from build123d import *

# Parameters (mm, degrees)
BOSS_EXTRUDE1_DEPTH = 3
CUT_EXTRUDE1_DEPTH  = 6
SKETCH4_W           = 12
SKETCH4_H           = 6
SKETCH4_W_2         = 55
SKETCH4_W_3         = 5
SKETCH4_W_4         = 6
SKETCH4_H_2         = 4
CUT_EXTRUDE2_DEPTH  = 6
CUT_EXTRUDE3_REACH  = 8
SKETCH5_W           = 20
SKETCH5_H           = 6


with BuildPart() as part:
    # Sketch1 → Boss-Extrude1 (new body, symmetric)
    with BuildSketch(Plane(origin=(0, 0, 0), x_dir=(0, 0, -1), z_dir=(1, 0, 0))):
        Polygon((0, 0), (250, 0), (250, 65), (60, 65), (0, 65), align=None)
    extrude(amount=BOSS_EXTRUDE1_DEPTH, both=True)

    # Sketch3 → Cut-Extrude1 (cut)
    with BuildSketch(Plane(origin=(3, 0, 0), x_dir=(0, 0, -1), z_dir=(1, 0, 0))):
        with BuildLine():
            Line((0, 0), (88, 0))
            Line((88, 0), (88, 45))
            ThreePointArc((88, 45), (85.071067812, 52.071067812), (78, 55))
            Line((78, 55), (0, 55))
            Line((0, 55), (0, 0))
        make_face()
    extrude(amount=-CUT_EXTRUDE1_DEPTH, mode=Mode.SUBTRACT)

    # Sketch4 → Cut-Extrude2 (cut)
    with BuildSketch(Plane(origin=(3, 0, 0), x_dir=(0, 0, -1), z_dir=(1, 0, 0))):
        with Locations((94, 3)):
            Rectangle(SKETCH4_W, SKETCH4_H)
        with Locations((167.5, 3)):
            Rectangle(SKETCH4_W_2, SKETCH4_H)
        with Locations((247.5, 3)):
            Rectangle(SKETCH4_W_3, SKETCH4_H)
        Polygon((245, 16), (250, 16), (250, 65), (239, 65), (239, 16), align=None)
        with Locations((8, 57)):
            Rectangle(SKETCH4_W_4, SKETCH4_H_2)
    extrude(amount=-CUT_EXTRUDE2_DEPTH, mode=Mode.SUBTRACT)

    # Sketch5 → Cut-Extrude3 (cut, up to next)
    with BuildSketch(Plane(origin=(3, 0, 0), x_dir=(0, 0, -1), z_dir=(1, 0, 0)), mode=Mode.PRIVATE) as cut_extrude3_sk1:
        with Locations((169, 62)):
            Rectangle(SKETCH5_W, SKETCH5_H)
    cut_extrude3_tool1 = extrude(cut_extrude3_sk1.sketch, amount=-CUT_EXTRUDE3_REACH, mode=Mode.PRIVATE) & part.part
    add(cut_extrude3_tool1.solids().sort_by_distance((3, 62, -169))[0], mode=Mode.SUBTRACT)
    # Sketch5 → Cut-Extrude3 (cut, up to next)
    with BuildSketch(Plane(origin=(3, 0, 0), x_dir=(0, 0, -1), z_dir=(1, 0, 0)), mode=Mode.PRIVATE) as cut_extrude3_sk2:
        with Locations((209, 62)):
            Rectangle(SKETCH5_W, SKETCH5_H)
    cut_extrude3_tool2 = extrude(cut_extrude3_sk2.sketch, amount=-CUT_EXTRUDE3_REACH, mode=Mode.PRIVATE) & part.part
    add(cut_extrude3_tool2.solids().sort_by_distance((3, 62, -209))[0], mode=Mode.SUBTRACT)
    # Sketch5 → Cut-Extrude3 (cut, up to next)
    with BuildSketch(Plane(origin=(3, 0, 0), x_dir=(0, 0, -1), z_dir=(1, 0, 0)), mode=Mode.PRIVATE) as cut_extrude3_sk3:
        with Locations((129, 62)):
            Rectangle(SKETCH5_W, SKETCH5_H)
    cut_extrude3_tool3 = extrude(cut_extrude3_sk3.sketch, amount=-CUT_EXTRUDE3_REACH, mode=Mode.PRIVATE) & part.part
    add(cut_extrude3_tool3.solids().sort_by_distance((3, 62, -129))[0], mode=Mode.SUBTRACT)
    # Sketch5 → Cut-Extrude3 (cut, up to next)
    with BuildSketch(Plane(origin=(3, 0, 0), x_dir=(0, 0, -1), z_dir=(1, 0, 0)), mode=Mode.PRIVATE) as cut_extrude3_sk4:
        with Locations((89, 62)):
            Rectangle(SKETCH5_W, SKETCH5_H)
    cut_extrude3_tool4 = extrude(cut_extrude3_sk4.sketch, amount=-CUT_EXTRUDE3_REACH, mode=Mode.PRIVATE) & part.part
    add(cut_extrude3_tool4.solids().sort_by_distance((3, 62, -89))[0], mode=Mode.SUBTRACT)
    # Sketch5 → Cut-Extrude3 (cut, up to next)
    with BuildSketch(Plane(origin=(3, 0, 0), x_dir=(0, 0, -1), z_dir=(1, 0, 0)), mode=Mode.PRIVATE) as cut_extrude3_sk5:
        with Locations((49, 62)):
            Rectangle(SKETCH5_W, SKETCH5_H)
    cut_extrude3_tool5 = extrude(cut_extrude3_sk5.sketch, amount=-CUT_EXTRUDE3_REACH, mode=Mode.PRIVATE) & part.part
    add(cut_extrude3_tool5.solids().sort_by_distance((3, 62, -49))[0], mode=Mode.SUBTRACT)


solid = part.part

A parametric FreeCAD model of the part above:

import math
import FreeCAD as App
import Part
import Sketcher

V = App.Vector
Q = App.Units.Quantity

doc = App.newDocument("Part")
body = doc.addObject("PartDesign::Body", "Body")

sketch1 = body.newObject("Sketcher::SketchObject", "Sketch")
sketch1.AttachmentSupport = (doc.getObject("YZ_Plane"), [""])
sketch1.MapMode = "FlatFace"
sketch1.addGeometry(Part.LineSegment(V(0, 0, 0), V(0, -250, 0)), False)
sketch1.addGeometry(Part.LineSegment(V(0, -250, 0), V(65, -250, 0)), False)
sketch1.addGeometry(Part.LineSegment(V(65, -250, 0), V(65, 0, 0)), False)
sketch1.addGeometry(Part.LineSegment(V(65, 0, 0), V(0, 0, 0)), False)
sketch1.addConstraint(Sketcher.Constraint("Coincident", 0, 2, 1, 1))
sketch1.addConstraint(Sketcher.Constraint("Coincident", 1, 2, 2, 1))
sketch1.addConstraint(Sketcher.Constraint("Coincident", 2, 2, 3, 1))
sketch1.addConstraint(Sketcher.Constraint("Coincident", 3, 2, 0, 1))
sketch1.addConstraint(Sketcher.Constraint("Vertical", 0))
sketch1.addConstraint(Sketcher.Constraint("Horizontal", 1))
sketch1.addConstraint(Sketcher.Constraint("Vertical", 2))
sketch1.addConstraint(Sketcher.Constraint("Horizontal", 3))
sketch1.addConstraint(Sketcher.Constraint("Coincident", 3, 2, -1, 1))
sketch1.addConstraint(Sketcher.Constraint("DistanceX", 1, 1, 1, 2, Q("65 mm")))
sketch1.addConstraint(Sketcher.Constraint("DistanceY", 0, 2, 0, 1, Q("250 mm")))
pad1 = body.newObject("PartDesign::Pad", "Pad")
pad1.Profile = sketch1
pad1.Length = 6
pad1.Midplane = True

sketch2 = body.newObject("Sketcher::SketchObject", "Sketch001")
sketch2.AttachmentSupport = (doc.getObject("YZ_Plane"), [""])
sketch2.MapMode = "FlatFace"
sketch2.AttachmentOffset = App.Placement(V(0, 0, 3), App.Rotation())
sketch2.addGeometry(Part.LineSegment(V(0, 0, 0), V(0, -88, 0)), False)
sketch2.addGeometry(Part.LineSegment(V(0, -88, 0), V(45, -88, 0)), False)
sketch2.addGeometry(Part.ArcOfCircle(Part.Circle(V(45, -78, 0), V(0, 0, 1), 10), math.radians(-90), math.radians(0)), False)
sketch2.addGeometry(Part.LineSegment(V(55, -78, 0), V(55, 0, 0)), False)
sketch2.addGeometry(Part.LineSegment(V(55, 0, 0), V(0, 0, 0)), False)
sketch2.addConstraint(Sketcher.Constraint("Coincident", 0, 2, 1, 1))
sketch2.addConstraint(Sketcher.Constraint("Tangent", 1, 2, 2, 1))
sketch2.addConstraint(Sketcher.Constraint("Tangent", 2, 2, 3, 1))
sketch2.addConstraint(Sketcher.Constraint("Coincident", 3, 2, 4, 1))
sketch2.addConstraint(Sketcher.Constraint("Coincident", 4, 2, 0, 1))
sketch2.addConstraint(Sketcher.Constraint("Vertical", 0))
sketch2.addConstraint(Sketcher.Constraint("Horizontal", 1))
sketch2.addConstraint(Sketcher.Constraint("Vertical", 3))
sketch2.addConstraint(Sketcher.Constraint("Horizontal", 4))
sketch2.addConstraint(Sketcher.Constraint("Coincident", 4, 2, -1, 1))
sketch2.addConstraint(Sketcher.Constraint("Radius", 2, Q("10 mm")))
sketch2.addConstraint(Sketcher.Constraint("DistanceX", 1, 1, 1, 2, Q("45 mm")))
sketch2.addConstraint(Sketcher.Constraint("DistanceY", 0, 2, 0, 1, Q("88 mm")))
pocket1 = body.newObject("PartDesign::Pocket", "Pocket")
pocket1.Profile = sketch2
pocket1.Length = 6

sketch3 = body.newObject("Sketcher::SketchObject", "Sketch002")
sketch3.AttachmentSupport = (doc.getObject("YZ_Plane"), [""])
sketch3.MapMode = "FlatFace"
sketch3.AttachmentOffset = App.Placement(V(0, 0, 3), App.Rotation())
sketch3.addGeometry(Part.LineSegment(V(6, -88, 0), V(0, -88, 0)), False)
sketch3.addGeometry(Part.LineSegment(V(0, -88, 0), V(0, -100, 0)), False)
sketch3.addGeometry(Part.LineSegment(V(0, -100, 0), V(6, -100, 0)), False)
sketch3.addGeometry(Part.LineSegment(V(6, -100, 0), V(6, -88, 0)), False)
sketch3.addGeometry(Part.LineSegment(V(6, -140, 0), V(0, -140, 0)), False)
sketch3.addGeometry(Part.LineSegment(V(0, -140, 0), V(0, -195, 0)), False)
sketch3.addGeometry(Part.LineSegment(V(0, -195, 0), V(6, -195, 0)), False)
sketch3.addGeometry(Part.LineSegment(V(6, -195, 0), V(6, -140, 0)), False)
sketch3.addGeometry(Part.LineSegment(V(6, -245, 0), V(0, -245, 0)), False)
sketch3.addGeometry(Part.LineSegment(V(0, -245, 0), V(0, -250, 0)), False)
sketch3.addGeometry(Part.LineSegment(V(0, -250, 0), V(6, -250, 0)), False)
sketch3.addGeometry(Part.LineSegment(V(6, -250, 0), V(6, -245, 0)), False)
sketch3.addGeometry(Part.LineSegment(V(16, -250, 0), V(65, -250, 0)), False)
sketch3.addGeometry(Part.LineSegment(V(65, -250, 0), V(65, -239, 0)), False)
sketch3.addGeometry(Part.LineSegment(V(65, -239, 0), V(16, -239, 0)), False)
sketch3.addGeometry(Part.LineSegment(V(16, -239, 0), V(16, -250, 0)), False)
sketch3.addGeometry(Part.LineSegment(V(59, -5, 0), V(55, -5, 0)), False)
sketch3.addGeometry(Part.LineSegment(V(55, -5, 0), V(55, -11, 0)), False)
sketch3.addGeometry(Part.LineSegment(V(55, -11, 0), V(59, -11, 0)), False)
sketch3.addGeometry(Part.LineSegment(V(59, -11, 0), V(59, -5, 0)), False)
sketch3.addConstraint(Sketcher.Constraint("Coincident", 0, 2, 1, 1))
sketch3.addConstraint(Sketcher.Constraint("Coincident", 1, 2, 2, 1))
sketch3.addConstraint(Sketcher.Constraint("Coincident", 2, 2, 3, 1))
sketch3.addConstraint(Sketcher.Constraint("Coincident", 3, 2, 0, 1))
sketch3.addConstraint(Sketcher.Constraint("Coincident", 4, 2, 5, 1))
sketch3.addConstraint(Sketcher.Constraint("Coincident", 5, 2, 6, 1))
sketch3.addConstraint(Sketcher.Constraint("Coincident", 6, 2, 7, 1))
sketch3.addConstraint(Sketcher.Constraint("Coincident", 7, 2, 4, 1))
sketch3.addConstraint(Sketcher.Constraint("Coincident", 8, 2, 9, 1))
sketch3.addConstraint(Sketcher.Constraint("Coincident", 9, 2, 10, 1))
sketch3.addConstraint(Sketcher.Constraint("Coincident", 10, 2, 11, 1))
sketch3.addConstraint(Sketcher.Constraint("Coincident", 11, 2, 8, 1))
sketch3.addConstraint(Sketcher.Constraint("Coincident", 12, 2, 13, 1))
sketch3.addConstraint(Sketcher.Constraint("Coincident", 13, 2, 14, 1))
sketch3.addConstraint(Sketcher.Constraint("Coincident", 14, 2, 15, 1))
sketch3.addConstraint(Sketcher.Constraint("Coincident", 15, 2, 12, 1))
sketch3.addConstraint(Sketcher.Constraint("Coincident", 16, 2, 17, 1))
sketch3.addConstraint(Sketcher.Constraint("Coincident", 17, 2, 18, 1))
sketch3.addConstraint(Sketcher.Constraint("Coincident", 18, 2, 19, 1))
sketch3.addConstraint(Sketcher.Constraint("Coincident", 19, 2, 16, 1))
sketch3.addConstraint(Sketcher.Constraint("Horizontal", 0))
sketch3.addConstraint(Sketcher.Constraint("Vertical", 1))
sketch3.addConstraint(Sketcher.Constraint("Horizontal", 2))
sketch3.addConstraint(Sketcher.Constraint("Vertical", 3))
sketch3.addConstraint(Sketcher.Constraint("Horizontal", 4))
sketch3.addConstraint(Sketcher.Constraint("Vertical", 5))
sketch3.addConstraint(Sketcher.Constraint("Horizontal", 6))
sketch3.addConstraint(Sketcher.Constraint("Vertical", 7))
sketch3.addConstraint(Sketcher.Constraint("Horizontal", 8))
sketch3.addConstraint(Sketcher.Constraint("Vertical", 9))
sketch3.addConstraint(Sketcher.Constraint("Horizontal", 10))
sketch3.addConstraint(Sketcher.Constraint("Vertical", 11))
sketch3.addConstraint(Sketcher.Constraint("Horizontal", 12))
sketch3.addConstraint(Sketcher.Constraint("Vertical", 13))
sketch3.addConstraint(Sketcher.Constraint("Horizontal", 14))
sketch3.addConstraint(Sketcher.Constraint("Vertical", 15))
sketch3.addConstraint(Sketcher.Constraint("Horizontal", 16))
sketch3.addConstraint(Sketcher.Constraint("Vertical", 17))
sketch3.addConstraint(Sketcher.Constraint("Horizontal", 18))
sketch3.addConstraint(Sketcher.Constraint("Vertical", 19))
sketch3.addConstraint(Sketcher.Constraint("PointOnObject", 0, 2, -2))
sketch3.addConstraint(Sketcher.Constraint("PointOnObject", 4, 2, -2))
sketch3.addConstraint(Sketcher.Constraint("PointOnObject", 8, 2, -2))
sketch3.addConstraint(Sketcher.Constraint("Horizontal", 10, 2, 12, 2))
sketch3.addConstraint(Sketcher.Constraint("Vertical", 3, 2, 6, 2))
sketch3.addConstraint(Sketcher.Constraint("Vertical", 7, 2, 10, 2))
sketch3.addConstraint(Sketcher.Constraint("Equal", 10, 17))
sketch3.addConstraint(Sketcher.Constraint("DistanceX", 0, 2, 0, 1, Q("6 mm")))
sketch3.addConstraint(Sketcher.Constraint("DistanceX", 12, 1, 12, 2, Q("49 mm")))
sketch3.addConstraint(Sketcher.Constraint("DistanceX", 16, 2, 16, 1, Q("4 mm")))
sketch3.addConstraint(Sketcher.Constraint("DistanceY", 1, 2, 1, 1, Q("12 mm")))
sketch3.addConstraint(Sketcher.Constraint("DistanceY", 5, 2, 5, 1, Q("55 mm")))
sketch3.addConstraint(Sketcher.Constraint("DistanceY", 9, 2, 9, 1, Q("5 mm")))
sketch3.addConstraint(Sketcher.Constraint("DistanceY", 13, 1, 13, 2, Q("11 mm")))
sketch3.addConstraint(Sketcher.Constraint("DistanceY", 0, 2, -1, 1, Q("88 mm")))
sketch3.addConstraint(Sketcher.Constraint("DistanceY", 4, 2, -1, 1, Q("140 mm")))
sketch3.addConstraint(Sketcher.Constraint("DistanceY", 8, 2, -1, 1, Q("245 mm")))
sketch3.addConstraint(Sketcher.Constraint("DistanceX", -1, 1, 12, 2, Q("65 mm")))
sketch3.addConstraint(Sketcher.Constraint("DistanceX", -1, 1, 16, 2, Q("55 mm")))
sketch3.addConstraint(Sketcher.Constraint("DistanceY", 16, 2, -1, 1, Q("5 mm")))
pocket2 = body.newObject("PartDesign::Pocket", "Pocket001")
pocket2.Profile = sketch3
pocket2.Length = 6

sketch4 = body.newObject("Sketcher::SketchObject", "Sketch003")
sketch4.AttachmentSupport = (doc.getObject("YZ_Plane"), [""])
sketch4.MapMode = "FlatFace"
sketch4.AttachmentOffset = App.Placement(V(0, 0, 3), App.Rotation())
sketch4.addGeometry(Part.LineSegment(V(65, -159, 0), V(59, -159, 0)), False)
sketch4.addGeometry(Part.LineSegment(V(59, -159, 0), V(59, -179, 0)), False)
sketch4.addGeometry(Part.LineSegment(V(59, -179, 0), V(65, -179, 0)), False)
sketch4.addGeometry(Part.LineSegment(V(65, -179, 0), V(65, -159, 0)), False)
sketch4.addConstraint(Sketcher.Constraint("Coincident", 0, 2, 1, 1))
sketch4.addConstraint(Sketcher.Constraint("Coincident", 1, 2, 2, 1))
sketch4.addConstraint(Sketcher.Constraint("Coincident", 2, 2, 3, 1))
sketch4.addConstraint(Sketcher.Constraint("Coincident", 3, 2, 0, 1))
sketch4.addConstraint(Sketcher.Constraint("Horizontal", 0))
sketch4.addConstraint(Sketcher.Constraint("Vertical", 1))
sketch4.addConstraint(Sketcher.Constraint("Horizontal", 2))
sketch4.addConstraint(Sketcher.Constraint("Vertical", 3))
sketch4.addConstraint(Sketcher.Constraint("DistanceX", 0, 2, 0, 1, Q("6 mm")))
sketch4.addConstraint(Sketcher.Constraint("DistanceY", 1, 2, 1, 1, Q("20 mm")))
sketch4.addConstraint(Sketcher.Constraint("DistanceX", -1, 1, 0, 2, Q("59 mm")))
sketch4.addConstraint(Sketcher.Constraint("DistanceY", 0, 2, -1, 1, Q("159 mm")))
pocket3 = body.newObject("PartDesign::Pocket", "Pocket002")
pocket3.Profile = sketch4
pocket3.Type = "UpToFirst"

sketch5 = body.newObject("Sketcher::SketchObject", "Sketch004")
sketch5.AttachmentSupport = (doc.getObject("YZ_Plane"), [""])
sketch5.MapMode = "FlatFace"
sketch5.AttachmentOffset = App.Placement(V(0, 0, 3), App.Rotation())
sketch5.addGeometry(Part.LineSegment(V(65, -199, 0), V(59, -199, 0)), False)
sketch5.addGeometry(Part.LineSegment(V(59, -199, 0), V(59, -219, 0)), False)
sketch5.addGeometry(Part.LineSegment(V(59, -219, 0), V(65, -219, 0)), False)
sketch5.addGeometry(Part.LineSegment(V(65, -219, 0), V(65, -199, 0)), False)
sketch5.addConstraint(Sketcher.Constraint("Coincident", 0, 2, 1, 1))
sketch5.addConstraint(Sketcher.Constraint("Coincident", 1, 2, 2, 1))
sketch5.addConstraint(Sketcher.Constraint("Coincident", 2, 2, 3, 1))
sketch5.addConstraint(Sketcher.Constraint("Coincident", 3, 2, 0, 1))
sketch5.addConstraint(Sketcher.Constraint("Horizontal", 0))
sketch5.addConstraint(Sketcher.Constraint("Vertical", 1))
sketch5.addConstraint(Sketcher.Constraint("Horizontal", 2))
sketch5.addConstraint(Sketcher.Constraint("Vertical", 3))
sketch5.addConstraint(Sketcher.Constraint("DistanceX", 0, 2, 0, 1, Q("6 mm")))
sketch5.addConstraint(Sketcher.Constraint("DistanceY", 1, 2, 1, 1, Q("20 mm")))
sketch5.addConstraint(Sketcher.Constraint("DistanceX", -1, 1, 0, 2, Q("59 mm")))
sketch5.addConstraint(Sketcher.Constraint("DistanceY", 0, 2, -1, 1, Q("199 mm")))
pocket4 = body.newObject("PartDesign::Pocket", "Pocket003")
pocket4.Profile = sketch5
pocket4.Type = "UpToFirst"

sketch6 = body.newObject("Sketcher::SketchObject", "Sketch005")
sketch6.AttachmentSupport = (doc.getObject("YZ_Plane"), [""])
sketch6.MapMode = "FlatFace"
sketch6.AttachmentOffset = App.Placement(V(0, 0, 3), App.Rotation())
sketch6.addGeometry(Part.LineSegment(V(65, -119, 0), V(59, -119, 0)), False)
sketch6.addGeometry(Part.LineSegment(V(59, -119, 0), V(59, -139, 0)), False)
sketch6.addGeometry(Part.LineSegment(V(59, -139, 0), V(65, -139, 0)), False)
sketch6.addGeometry(Part.LineSegment(V(65, -139, 0), V(65, -119, 0)), False)
sketch6.addConstraint(Sketcher.Constraint("Coincident", 0, 2, 1, 1))
sketch6.addConstraint(Sketcher.Constraint("Coincident", 1, 2, 2, 1))
sketch6.addConstraint(Sketcher.Constraint("Coincident", 2, 2, 3, 1))
sketch6.addConstraint(Sketcher.Constraint("Coincident", 3, 2, 0, 1))
sketch6.addConstraint(Sketcher.Constraint("Horizontal", 0))
sketch6.addConstraint(Sketcher.Constraint("Vertical", 1))
sketch6.addConstraint(Sketcher.Constraint("Horizontal", 2))
sketch6.addConstraint(Sketcher.Constraint("Vertical", 3))
sketch6.addConstraint(Sketcher.Constraint("DistanceX", 0, 2, 0, 1, Q("6 mm")))
sketch6.addConstraint(Sketcher.Constraint("DistanceY", 1, 2, 1, 1, Q("20 mm")))
sketch6.addConstraint(Sketcher.Constraint("DistanceX", -1, 1, 0, 2, Q("59 mm")))
sketch6.addConstraint(Sketcher.Constraint("DistanceY", 0, 2, -1, 1, Q("119 mm")))
pocket5 = body.newObject("PartDesign::Pocket", "Pocket004")
pocket5.Profile = sketch6
pocket5.Type = "UpToFirst"

sketch7 = body.newObject("Sketcher::SketchObject", "Sketch006")
sketch7.AttachmentSupport = (doc.getObject("YZ_Plane"), [""])
sketch7.MapMode = "FlatFace"
sketch7.AttachmentOffset = App.Placement(V(0, 0, 3), App.Rotation())
sketch7.addGeometry(Part.LineSegment(V(65, -79, 0), V(59, -79, 0)), False)
sketch7.addGeometry(Part.LineSegment(V(59, -79, 0), V(59, -99, 0)), False)
sketch7.addGeometry(Part.LineSegment(V(59, -99, 0), V(65, -99, 0)), False)
sketch7.addGeometry(Part.LineSegment(V(65, -99, 0), V(65, -79, 0)), False)
sketch7.addConstraint(Sketcher.Constraint("Coincident", 0, 2, 1, 1))
sketch7.addConstraint(Sketcher.Constraint("Coincident", 1, 2, 2, 1))
sketch7.addConstraint(Sketcher.Constraint("Coincident", 2, 2, 3, 1))
sketch7.addConstraint(Sketcher.Constraint("Coincident", 3, 2, 0, 1))
sketch7.addConstraint(Sketcher.Constraint("Horizontal", 0))
sketch7.addConstraint(Sketcher.Constraint("Vertical", 1))
sketch7.addConstraint(Sketcher.Constraint("Horizontal", 2))
sketch7.addConstraint(Sketcher.Constraint("Vertical", 3))
sketch7.addConstraint(Sketcher.Constraint("DistanceX", 0, 2, 0, 1, Q("6 mm")))
sketch7.addConstraint(Sketcher.Constraint("DistanceY", 1, 2, 1, 1, Q("20 mm")))
sketch7.addConstraint(Sketcher.Constraint("DistanceX", -1, 1, 0, 2, Q("59 mm")))
sketch7.addConstraint(Sketcher.Constraint("DistanceY", 0, 2, -1, 1, Q("79 mm")))
pocket6 = body.newObject("PartDesign::Pocket", "Pocket005")
pocket6.Profile = sketch7
pocket6.Type = "UpToFirst"

sketch8 = body.newObject("Sketcher::SketchObject", "Sketch007")
sketch8.AttachmentSupport = (doc.getObject("YZ_Plane"), [""])
sketch8.MapMode = "FlatFace"
sketch8.AttachmentOffset = App.Placement(V(0, 0, 3), App.Rotation())
sketch8.addGeometry(Part.LineSegment(V(65, -39, 0), V(59, -39, 0)), False)
sketch8.addGeometry(Part.LineSegment(V(59, -39, 0), V(59, -59, 0)), False)
sketch8.addGeometry(Part.LineSegment(V(59, -59, 0), V(65, -59, 0)), False)
sketch8.addGeometry(Part.LineSegment(V(65, -59, 0), V(65, -39, 0)), False)
sketch8.addConstraint(Sketcher.Constraint("Coincident", 0, 2, 1, 1))
sketch8.addConstraint(Sketcher.Constraint("Coincident", 1, 2, 2, 1))
sketch8.addConstraint(Sketcher.Constraint("Coincident", 2, 2, 3, 1))
sketch8.addConstraint(Sketcher.Constraint("Coincident", 3, 2, 0, 1))
sketch8.addConstraint(Sketcher.Constraint("Horizontal", 0))
sketch8.addConstraint(Sketcher.Constraint("Vertical", 1))
sketch8.addConstraint(Sketcher.Constraint("Horizontal", 2))
sketch8.addConstraint(Sketcher.Constraint("Vertical", 3))
sketch8.addConstraint(Sketcher.Constraint("DistanceX", 0, 2, 0, 1, Q("6 mm")))
sketch8.addConstraint(Sketcher.Constraint("DistanceY", 1, 2, 1, 1, Q("20 mm")))
sketch8.addConstraint(Sketcher.Constraint("DistanceX", -1, 1, 0, 2, Q("59 mm")))
sketch8.addConstraint(Sketcher.Constraint("DistanceY", 0, 2, -1, 1, Q("39 mm")))
pocket7 = body.newObject("PartDesign::Pocket", "Pocket006")
pocket7.Profile = sketch8
pocket7.Type = "UpToFirst"

doc.recompute()
